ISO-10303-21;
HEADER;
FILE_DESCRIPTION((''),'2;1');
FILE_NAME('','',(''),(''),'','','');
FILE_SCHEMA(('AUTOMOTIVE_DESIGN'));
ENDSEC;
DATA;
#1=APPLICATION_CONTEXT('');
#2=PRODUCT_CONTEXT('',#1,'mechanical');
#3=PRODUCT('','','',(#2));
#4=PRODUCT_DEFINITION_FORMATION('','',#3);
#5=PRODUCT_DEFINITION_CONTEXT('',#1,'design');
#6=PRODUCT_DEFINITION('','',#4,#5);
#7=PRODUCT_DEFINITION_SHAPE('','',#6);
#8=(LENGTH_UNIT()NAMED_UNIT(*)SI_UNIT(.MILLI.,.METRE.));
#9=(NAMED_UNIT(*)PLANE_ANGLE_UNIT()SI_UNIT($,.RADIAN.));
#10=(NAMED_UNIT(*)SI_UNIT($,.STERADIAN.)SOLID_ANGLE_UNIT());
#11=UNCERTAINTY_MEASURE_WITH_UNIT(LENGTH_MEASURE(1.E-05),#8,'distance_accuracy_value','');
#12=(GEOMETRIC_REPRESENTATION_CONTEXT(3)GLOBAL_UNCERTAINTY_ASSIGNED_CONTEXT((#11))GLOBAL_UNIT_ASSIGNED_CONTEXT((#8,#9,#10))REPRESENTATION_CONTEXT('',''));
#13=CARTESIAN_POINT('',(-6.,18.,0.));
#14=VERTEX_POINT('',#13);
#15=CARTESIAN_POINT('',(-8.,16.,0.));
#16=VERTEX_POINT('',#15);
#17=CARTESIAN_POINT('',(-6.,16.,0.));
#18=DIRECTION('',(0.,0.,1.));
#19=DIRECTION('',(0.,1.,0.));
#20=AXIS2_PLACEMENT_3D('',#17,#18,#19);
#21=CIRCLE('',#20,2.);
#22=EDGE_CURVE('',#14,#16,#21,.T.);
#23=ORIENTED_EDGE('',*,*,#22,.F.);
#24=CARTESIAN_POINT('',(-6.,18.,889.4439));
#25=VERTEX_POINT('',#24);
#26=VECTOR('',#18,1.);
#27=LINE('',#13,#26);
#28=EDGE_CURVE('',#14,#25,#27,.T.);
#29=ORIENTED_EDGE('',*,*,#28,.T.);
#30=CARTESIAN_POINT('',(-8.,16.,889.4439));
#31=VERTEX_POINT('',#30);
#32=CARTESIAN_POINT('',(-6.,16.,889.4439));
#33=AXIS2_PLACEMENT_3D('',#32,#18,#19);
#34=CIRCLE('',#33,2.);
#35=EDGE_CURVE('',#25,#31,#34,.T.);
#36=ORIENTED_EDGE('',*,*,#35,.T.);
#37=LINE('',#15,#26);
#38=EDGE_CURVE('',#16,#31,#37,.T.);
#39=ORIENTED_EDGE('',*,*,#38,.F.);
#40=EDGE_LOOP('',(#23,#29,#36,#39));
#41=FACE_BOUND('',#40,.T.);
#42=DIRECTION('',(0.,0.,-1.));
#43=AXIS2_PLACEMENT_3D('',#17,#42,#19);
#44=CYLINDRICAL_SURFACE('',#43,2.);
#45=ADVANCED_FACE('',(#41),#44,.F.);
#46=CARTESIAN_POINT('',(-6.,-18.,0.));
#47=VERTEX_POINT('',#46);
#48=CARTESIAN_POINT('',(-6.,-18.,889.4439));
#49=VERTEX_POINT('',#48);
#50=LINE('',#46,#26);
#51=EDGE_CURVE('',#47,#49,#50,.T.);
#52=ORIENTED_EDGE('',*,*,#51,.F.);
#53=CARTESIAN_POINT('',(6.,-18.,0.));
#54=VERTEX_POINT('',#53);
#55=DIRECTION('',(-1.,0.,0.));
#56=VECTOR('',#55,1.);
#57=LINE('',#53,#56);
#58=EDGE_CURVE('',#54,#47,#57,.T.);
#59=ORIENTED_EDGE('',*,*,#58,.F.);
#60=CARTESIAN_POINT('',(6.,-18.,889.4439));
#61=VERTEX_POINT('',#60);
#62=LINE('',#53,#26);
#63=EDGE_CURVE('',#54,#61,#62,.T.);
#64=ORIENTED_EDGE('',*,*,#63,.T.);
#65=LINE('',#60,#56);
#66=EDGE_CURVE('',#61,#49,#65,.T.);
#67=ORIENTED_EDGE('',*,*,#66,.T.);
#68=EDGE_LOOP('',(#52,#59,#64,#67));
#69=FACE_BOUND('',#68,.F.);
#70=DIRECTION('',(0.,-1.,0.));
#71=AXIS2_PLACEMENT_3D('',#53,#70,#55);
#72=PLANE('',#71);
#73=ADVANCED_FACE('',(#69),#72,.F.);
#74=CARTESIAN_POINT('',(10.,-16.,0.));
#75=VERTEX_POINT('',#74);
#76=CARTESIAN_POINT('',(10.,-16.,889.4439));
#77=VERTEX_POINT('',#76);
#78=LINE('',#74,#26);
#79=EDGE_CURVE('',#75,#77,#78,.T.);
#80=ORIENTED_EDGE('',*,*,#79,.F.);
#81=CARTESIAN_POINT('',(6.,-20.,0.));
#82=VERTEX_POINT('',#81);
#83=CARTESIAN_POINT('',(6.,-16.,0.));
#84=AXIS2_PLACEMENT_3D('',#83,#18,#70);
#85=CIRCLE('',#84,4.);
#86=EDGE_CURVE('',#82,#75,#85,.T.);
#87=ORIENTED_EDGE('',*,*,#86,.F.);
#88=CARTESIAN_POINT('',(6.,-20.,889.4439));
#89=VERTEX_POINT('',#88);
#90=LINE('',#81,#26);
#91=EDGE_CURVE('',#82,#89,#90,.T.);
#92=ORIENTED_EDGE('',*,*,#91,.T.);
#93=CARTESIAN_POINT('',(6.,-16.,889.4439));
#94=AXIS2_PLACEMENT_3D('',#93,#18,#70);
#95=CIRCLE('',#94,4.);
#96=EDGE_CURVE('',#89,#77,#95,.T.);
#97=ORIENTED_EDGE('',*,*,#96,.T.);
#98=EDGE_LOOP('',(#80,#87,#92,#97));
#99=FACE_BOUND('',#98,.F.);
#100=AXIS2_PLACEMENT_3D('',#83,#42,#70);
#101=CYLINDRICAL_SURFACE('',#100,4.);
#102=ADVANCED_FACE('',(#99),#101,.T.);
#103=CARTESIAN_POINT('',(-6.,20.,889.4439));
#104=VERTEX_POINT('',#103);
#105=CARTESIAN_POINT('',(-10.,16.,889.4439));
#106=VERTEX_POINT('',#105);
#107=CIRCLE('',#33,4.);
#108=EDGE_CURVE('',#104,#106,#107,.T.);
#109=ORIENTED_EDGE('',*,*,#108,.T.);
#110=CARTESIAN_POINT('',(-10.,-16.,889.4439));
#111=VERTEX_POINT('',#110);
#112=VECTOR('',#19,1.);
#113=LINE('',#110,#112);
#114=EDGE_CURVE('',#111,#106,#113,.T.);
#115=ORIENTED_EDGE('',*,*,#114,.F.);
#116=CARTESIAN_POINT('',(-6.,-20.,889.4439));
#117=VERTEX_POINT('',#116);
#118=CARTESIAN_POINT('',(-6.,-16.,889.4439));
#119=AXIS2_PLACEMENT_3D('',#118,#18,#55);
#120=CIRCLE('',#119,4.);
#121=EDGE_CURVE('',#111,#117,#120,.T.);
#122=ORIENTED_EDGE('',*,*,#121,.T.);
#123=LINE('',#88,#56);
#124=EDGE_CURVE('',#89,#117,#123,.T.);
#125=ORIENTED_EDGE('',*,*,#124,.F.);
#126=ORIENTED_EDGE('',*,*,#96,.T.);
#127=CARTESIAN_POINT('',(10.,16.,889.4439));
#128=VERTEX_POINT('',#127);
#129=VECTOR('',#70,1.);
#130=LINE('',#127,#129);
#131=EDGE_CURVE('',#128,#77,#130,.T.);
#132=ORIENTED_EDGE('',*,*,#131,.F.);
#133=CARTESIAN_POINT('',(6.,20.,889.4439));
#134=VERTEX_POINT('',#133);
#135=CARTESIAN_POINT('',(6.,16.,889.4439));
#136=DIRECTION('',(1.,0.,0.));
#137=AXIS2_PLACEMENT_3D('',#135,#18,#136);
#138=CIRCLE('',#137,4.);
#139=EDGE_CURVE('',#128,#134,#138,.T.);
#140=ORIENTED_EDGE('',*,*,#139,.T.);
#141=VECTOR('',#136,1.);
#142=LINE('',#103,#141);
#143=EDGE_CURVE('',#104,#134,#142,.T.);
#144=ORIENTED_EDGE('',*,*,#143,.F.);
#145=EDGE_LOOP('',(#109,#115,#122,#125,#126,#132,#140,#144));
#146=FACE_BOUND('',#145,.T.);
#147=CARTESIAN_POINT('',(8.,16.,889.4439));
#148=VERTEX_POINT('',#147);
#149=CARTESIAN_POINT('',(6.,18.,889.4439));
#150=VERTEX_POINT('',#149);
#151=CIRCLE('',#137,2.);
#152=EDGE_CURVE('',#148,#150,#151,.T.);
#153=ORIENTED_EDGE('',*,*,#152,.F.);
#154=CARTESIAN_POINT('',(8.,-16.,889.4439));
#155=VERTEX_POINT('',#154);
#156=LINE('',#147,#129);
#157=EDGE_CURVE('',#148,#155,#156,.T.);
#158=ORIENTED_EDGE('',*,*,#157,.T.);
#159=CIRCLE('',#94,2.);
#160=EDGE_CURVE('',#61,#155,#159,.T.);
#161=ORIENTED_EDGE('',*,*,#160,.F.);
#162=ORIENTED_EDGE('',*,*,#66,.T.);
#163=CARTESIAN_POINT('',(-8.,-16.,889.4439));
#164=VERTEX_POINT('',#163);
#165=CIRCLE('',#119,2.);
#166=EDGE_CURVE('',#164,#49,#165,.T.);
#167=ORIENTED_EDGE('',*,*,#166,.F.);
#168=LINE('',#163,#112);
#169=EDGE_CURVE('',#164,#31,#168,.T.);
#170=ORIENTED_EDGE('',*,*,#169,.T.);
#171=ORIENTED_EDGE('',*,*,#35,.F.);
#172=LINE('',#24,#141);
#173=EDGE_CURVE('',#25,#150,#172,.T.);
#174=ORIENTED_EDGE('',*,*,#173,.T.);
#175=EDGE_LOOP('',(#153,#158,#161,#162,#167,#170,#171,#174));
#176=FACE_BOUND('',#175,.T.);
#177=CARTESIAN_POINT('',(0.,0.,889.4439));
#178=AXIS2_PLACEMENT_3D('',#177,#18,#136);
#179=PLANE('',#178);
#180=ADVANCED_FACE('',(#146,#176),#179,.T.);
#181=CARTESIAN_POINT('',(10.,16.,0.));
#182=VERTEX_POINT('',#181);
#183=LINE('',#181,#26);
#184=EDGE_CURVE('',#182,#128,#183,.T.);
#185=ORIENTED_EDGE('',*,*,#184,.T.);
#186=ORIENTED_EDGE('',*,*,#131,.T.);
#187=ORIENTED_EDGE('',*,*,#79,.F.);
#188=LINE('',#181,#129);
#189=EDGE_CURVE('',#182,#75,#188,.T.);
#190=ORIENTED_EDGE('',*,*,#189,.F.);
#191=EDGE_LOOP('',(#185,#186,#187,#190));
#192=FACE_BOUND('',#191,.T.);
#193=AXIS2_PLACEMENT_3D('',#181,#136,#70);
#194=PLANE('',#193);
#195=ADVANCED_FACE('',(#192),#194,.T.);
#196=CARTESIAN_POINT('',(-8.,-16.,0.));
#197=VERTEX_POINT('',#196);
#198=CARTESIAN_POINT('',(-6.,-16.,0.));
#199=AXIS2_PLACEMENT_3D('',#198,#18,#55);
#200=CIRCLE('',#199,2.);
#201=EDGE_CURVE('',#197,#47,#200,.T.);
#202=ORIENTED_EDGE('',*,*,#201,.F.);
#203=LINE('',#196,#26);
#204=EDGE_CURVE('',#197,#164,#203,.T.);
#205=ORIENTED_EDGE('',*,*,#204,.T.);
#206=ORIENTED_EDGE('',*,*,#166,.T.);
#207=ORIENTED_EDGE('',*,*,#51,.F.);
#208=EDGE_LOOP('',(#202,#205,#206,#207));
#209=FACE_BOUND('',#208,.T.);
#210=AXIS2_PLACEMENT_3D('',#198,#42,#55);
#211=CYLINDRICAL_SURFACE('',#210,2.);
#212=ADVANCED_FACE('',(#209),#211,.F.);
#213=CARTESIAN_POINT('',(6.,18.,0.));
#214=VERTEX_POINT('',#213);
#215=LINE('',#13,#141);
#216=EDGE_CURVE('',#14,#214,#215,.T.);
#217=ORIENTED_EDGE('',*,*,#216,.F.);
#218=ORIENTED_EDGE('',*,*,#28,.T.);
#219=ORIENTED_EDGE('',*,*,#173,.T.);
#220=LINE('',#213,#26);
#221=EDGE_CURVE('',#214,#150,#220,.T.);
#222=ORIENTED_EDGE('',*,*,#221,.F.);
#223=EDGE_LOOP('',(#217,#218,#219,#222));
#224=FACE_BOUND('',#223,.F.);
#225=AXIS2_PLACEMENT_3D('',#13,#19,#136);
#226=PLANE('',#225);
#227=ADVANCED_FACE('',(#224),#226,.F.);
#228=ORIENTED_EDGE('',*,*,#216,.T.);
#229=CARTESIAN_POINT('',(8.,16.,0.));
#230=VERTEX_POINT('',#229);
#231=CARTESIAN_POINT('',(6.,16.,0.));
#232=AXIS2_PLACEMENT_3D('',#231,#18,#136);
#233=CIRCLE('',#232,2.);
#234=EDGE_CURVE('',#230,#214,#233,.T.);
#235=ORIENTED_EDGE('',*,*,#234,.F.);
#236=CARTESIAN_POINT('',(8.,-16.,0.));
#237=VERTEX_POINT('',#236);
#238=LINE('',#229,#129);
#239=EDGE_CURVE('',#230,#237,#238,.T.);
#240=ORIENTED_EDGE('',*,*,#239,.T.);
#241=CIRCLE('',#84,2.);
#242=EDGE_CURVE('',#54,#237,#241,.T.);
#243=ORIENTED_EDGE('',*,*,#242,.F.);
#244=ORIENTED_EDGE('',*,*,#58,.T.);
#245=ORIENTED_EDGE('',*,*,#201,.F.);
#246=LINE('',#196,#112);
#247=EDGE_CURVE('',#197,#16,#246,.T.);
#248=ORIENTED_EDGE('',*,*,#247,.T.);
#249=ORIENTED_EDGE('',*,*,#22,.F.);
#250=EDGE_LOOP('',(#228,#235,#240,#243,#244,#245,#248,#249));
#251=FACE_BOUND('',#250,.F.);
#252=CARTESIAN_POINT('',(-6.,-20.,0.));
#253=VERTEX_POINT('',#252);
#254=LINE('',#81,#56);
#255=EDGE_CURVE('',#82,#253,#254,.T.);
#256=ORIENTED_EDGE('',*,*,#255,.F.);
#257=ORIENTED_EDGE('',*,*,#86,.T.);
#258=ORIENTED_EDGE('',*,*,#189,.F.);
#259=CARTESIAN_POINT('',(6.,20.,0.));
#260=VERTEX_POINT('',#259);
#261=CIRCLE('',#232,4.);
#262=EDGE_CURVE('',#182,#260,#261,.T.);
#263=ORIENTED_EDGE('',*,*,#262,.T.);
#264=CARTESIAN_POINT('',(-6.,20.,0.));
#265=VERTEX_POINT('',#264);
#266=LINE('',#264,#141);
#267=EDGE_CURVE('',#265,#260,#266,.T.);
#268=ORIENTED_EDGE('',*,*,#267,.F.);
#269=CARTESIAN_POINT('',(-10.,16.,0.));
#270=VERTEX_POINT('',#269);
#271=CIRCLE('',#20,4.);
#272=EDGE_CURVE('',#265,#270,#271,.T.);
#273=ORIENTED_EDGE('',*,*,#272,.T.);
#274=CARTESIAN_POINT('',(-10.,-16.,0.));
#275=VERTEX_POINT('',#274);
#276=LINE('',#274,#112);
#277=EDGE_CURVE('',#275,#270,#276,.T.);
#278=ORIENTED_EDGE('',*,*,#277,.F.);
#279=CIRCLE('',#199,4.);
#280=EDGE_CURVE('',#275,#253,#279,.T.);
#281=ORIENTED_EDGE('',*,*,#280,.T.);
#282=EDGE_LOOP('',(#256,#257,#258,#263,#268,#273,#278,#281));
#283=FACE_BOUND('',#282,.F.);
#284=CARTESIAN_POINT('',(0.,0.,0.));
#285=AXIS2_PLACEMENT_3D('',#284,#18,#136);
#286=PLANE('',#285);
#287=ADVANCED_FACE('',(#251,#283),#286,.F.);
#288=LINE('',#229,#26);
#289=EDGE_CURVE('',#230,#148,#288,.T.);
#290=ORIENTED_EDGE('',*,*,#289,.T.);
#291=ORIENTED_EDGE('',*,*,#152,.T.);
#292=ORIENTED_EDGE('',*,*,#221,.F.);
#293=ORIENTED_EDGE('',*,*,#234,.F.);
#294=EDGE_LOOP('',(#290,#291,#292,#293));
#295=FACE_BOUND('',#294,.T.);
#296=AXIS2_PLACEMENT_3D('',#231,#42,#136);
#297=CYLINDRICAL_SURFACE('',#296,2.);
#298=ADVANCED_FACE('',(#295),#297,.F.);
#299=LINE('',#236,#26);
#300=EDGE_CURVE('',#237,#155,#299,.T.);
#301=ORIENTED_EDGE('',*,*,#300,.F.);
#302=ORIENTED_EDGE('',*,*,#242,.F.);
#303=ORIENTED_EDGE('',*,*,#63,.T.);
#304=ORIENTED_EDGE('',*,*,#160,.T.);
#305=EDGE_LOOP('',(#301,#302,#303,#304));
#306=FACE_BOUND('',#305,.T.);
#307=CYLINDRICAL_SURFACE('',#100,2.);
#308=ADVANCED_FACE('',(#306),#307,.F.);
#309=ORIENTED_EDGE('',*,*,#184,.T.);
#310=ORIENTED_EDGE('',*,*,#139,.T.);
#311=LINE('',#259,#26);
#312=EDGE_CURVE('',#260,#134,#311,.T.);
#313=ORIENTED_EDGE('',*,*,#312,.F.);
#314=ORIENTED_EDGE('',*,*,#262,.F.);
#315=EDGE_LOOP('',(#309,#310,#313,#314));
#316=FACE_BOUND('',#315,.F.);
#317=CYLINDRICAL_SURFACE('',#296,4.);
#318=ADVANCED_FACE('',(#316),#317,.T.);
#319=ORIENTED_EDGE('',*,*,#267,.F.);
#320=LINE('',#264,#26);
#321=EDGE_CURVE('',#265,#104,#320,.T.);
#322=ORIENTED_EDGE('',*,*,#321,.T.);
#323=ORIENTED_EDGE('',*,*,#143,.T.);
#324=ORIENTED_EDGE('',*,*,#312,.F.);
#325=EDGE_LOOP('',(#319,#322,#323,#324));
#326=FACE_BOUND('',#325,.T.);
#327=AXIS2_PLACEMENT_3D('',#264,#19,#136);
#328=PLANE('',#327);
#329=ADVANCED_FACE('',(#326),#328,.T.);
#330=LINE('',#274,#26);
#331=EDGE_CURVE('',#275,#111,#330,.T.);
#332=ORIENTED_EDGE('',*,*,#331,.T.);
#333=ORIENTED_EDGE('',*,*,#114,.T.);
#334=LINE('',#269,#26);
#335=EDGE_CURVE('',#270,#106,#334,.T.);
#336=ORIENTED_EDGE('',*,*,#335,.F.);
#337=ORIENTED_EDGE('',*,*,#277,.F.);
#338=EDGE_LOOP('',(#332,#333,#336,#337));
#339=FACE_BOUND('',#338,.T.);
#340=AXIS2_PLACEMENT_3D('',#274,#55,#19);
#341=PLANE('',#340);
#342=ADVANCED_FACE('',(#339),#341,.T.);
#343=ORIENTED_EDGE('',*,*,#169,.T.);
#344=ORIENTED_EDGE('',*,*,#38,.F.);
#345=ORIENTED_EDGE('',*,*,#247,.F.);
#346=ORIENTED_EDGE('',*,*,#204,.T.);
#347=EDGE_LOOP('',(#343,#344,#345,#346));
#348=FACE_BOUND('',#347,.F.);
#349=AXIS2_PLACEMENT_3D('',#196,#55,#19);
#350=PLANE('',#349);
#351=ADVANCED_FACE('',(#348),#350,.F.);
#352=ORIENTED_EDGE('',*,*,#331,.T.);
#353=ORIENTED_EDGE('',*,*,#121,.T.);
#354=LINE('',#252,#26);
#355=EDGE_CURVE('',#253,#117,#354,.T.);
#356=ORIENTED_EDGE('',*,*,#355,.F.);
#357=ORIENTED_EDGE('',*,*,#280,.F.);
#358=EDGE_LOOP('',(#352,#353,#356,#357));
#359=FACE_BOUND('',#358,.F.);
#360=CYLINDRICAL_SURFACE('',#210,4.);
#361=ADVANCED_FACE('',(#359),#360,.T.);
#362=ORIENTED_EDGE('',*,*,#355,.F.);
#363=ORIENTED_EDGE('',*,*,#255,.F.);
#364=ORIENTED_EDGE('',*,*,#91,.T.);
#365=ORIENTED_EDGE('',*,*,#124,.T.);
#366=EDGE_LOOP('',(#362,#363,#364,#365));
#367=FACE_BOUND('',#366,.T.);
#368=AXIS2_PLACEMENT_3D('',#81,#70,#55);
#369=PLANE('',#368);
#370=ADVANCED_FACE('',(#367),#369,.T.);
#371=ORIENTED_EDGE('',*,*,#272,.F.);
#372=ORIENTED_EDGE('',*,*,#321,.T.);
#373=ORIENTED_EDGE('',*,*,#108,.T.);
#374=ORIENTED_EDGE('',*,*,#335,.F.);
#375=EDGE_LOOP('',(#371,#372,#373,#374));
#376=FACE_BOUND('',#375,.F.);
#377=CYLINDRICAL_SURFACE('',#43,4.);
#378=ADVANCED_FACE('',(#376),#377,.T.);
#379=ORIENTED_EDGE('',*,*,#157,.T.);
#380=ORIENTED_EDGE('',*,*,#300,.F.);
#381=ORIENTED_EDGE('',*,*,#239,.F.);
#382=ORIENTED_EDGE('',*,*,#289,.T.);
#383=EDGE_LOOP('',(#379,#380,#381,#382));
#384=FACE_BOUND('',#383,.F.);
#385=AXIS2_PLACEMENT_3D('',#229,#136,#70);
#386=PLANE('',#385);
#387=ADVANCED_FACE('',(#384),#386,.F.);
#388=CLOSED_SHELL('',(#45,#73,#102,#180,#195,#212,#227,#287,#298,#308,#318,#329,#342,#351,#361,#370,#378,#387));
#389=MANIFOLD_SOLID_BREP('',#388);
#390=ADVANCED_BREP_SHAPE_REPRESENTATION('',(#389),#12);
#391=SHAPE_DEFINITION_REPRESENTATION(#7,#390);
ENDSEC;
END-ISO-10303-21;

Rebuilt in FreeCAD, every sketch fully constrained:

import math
import FreeCAD as App
import Part
import Sketcher

V = App.Vector
Q = App.Units.Quantity

doc = App.newDocument("Part")
body = doc.addObject("PartDesign::Body", "Body")

# Sketch on XY plane
sketch1 = doc.addObject("Sketcher::SketchObject", "Sketch")
body.addObject(sketch1)
sketch1.AttachmentSupport = (doc.XY_Plane, [""])
sketch1.MapMode = "FlatFace"
sketch1.addGeometry([
    Part.LineSegment(V(-10, 16, 0), V(-10, -16, 0)),  # 0
    Part.ArcOfCircle(Part.Circle(V(-6, -16, 0), V(0, 0, 1), 4), math.radians(180), math.radians(270)),  # 1
    Part.LineSegment(V(-6, -20, 0), V(6, -20, 0)),  # 2
    Part.ArcOfCircle(Part.Circle(V(6, -16, 0), V(0, 0, 1), 4), math.radians(-90), math.radians(0)),  # 3
    Part.LineSegment(V(10, -16, 0), V(10, 16, 0)),  # 4
    Part.ArcOfCircle(Part.Circle(V(6, 16, 0), V(0, 0, 1), 4), math.radians(0), math.radians(90)),  # 5
    Part.LineSegment(V(6, 20, 0), V(-6, 20, 0)),  # 6
    Part.ArcOfCircle(Part.Circle(V(-6, 16, 0), V(0, 0, 1), 4), math.radians(90), math.radians(180)),  # 7
    Part.ArcOfCircle(Part.Circle(V(-6, 16, 0), V(0, 0, 1), 2), math.radians(90), math.radians(180)),  # 8
    Part.LineSegment(V(-6, 18, 0), V(6, 18, 0)),  # 9
    Part.ArcOfCircle(Part.Circle(V(6, 16, 0), V(0, 0, 1), 2), math.radians(0), math.radians(90)),  # 10
    Part.LineSegment(V(8, 16, 0), V(8, -16, 0)),  # 11
    Part.ArcOfCircle(Part.Circle(V(6, -16, 0), V(0, 0, 1), 2), math.radians(-90), math.radians(0)),  # 12
    Part.LineSegment(V(6, -18, 0), V(-6, -18, 0)),  # 13
    Part.ArcOfCircle(Part.Circle(V(-6, -16, 0), V(0, 0, 1), 2), math.radians(180), math.radians(270)),  # 14
    Part.LineSegment(V(-8, -16, 0), V(-8, 16, 0)),  # 15
], False)
sketch1.addConstraint([
    Sketcher.Constraint("Tangent", 0, 2, 1, 1),
    Sketcher.Constraint("Tangent", 1, 2, 2, 1),
    Sketcher.Constraint("Tangent", 2, 2, 3, 1),
    Sketcher.Constraint("Tangent", 3, 2, 4, 1),
    Sketcher.Constraint("Tangent", 4, 2, 5, 1),
    Sketcher.Constraint("Tangent", 5, 2, 6, 1),
    Sketcher.Constraint("Tangent", 6, 2, 7, 1),
    Sketcher.Constraint("Tangent", 7, 2, 0, 1),
    Sketcher.Constraint("Tangent", 8, 1, 9, 1),
    Sketcher.Constraint("Tangent", 9, 2, 10, 2),
    Sketcher.Constraint("Tangent", 10, 1, 11, 1),
    Sketcher.Constraint("Tangent", 11, 2, 12, 2),
    Sketcher.Constraint("Tangent", 12, 1, 13, 1),
    Sketcher.Constraint("Tangent", 13, 2, 14, 2),
    Sketcher.Constraint("Tangent", 14, 1, 15, 1),
    Sketcher.Constraint("Tangent", 15, 2, 8, 2),
    Sketcher.Constraint("Vertical", 0),
    Sketcher.Constraint("Horizontal", 2),
    Sketcher.Constraint("Vertical", 4),
    Sketcher.Constraint("Horizontal", 6),
    Sketcher.Constraint("Horizontal", 9),
    Sketcher.Constraint("Vertical", 11),
    Sketcher.Constraint("Horizontal", 13),
    Sketcher.Constraint("Vertical", 15),
    Sketcher.Constraint("Coincident", 8, 3, 7, 3),
    Sketcher.Constraint("Coincident", 10, 3, 5, 3),
    Sketcher.Constraint("Coincident", 12, 3, 3, 3),
    Sketcher.Constraint("Equal", 1, 3),
    Sketcher.Constraint("Equal", 3, 5),
    Sketcher.Constraint("Equal", 5, 7),
    Sketcher.Constraint("Equal", 12, 14),
    Sketcher.Constraint("Symmetric", 1, 3, 5, 3, -1, 1),
    Sketcher.Constraint("Radius", 1, Q("4 mm")),
    Sketcher.Constraint("Radius", 8, Q("2 mm")),
    Sketcher.Constraint("DistanceX", 0, 2, -1, 1, Q("10 mm")),
    Sketcher.Constraint("DistanceY", 1, 2, -1, 1, Q("20 mm")),
])
pad1 = doc.addObject("PartDesign::Pad", "Pad")
body.addObject(pad1)
pad1.Profile = sketch1
pad1.Length = 889.4439

doc.recompute()
